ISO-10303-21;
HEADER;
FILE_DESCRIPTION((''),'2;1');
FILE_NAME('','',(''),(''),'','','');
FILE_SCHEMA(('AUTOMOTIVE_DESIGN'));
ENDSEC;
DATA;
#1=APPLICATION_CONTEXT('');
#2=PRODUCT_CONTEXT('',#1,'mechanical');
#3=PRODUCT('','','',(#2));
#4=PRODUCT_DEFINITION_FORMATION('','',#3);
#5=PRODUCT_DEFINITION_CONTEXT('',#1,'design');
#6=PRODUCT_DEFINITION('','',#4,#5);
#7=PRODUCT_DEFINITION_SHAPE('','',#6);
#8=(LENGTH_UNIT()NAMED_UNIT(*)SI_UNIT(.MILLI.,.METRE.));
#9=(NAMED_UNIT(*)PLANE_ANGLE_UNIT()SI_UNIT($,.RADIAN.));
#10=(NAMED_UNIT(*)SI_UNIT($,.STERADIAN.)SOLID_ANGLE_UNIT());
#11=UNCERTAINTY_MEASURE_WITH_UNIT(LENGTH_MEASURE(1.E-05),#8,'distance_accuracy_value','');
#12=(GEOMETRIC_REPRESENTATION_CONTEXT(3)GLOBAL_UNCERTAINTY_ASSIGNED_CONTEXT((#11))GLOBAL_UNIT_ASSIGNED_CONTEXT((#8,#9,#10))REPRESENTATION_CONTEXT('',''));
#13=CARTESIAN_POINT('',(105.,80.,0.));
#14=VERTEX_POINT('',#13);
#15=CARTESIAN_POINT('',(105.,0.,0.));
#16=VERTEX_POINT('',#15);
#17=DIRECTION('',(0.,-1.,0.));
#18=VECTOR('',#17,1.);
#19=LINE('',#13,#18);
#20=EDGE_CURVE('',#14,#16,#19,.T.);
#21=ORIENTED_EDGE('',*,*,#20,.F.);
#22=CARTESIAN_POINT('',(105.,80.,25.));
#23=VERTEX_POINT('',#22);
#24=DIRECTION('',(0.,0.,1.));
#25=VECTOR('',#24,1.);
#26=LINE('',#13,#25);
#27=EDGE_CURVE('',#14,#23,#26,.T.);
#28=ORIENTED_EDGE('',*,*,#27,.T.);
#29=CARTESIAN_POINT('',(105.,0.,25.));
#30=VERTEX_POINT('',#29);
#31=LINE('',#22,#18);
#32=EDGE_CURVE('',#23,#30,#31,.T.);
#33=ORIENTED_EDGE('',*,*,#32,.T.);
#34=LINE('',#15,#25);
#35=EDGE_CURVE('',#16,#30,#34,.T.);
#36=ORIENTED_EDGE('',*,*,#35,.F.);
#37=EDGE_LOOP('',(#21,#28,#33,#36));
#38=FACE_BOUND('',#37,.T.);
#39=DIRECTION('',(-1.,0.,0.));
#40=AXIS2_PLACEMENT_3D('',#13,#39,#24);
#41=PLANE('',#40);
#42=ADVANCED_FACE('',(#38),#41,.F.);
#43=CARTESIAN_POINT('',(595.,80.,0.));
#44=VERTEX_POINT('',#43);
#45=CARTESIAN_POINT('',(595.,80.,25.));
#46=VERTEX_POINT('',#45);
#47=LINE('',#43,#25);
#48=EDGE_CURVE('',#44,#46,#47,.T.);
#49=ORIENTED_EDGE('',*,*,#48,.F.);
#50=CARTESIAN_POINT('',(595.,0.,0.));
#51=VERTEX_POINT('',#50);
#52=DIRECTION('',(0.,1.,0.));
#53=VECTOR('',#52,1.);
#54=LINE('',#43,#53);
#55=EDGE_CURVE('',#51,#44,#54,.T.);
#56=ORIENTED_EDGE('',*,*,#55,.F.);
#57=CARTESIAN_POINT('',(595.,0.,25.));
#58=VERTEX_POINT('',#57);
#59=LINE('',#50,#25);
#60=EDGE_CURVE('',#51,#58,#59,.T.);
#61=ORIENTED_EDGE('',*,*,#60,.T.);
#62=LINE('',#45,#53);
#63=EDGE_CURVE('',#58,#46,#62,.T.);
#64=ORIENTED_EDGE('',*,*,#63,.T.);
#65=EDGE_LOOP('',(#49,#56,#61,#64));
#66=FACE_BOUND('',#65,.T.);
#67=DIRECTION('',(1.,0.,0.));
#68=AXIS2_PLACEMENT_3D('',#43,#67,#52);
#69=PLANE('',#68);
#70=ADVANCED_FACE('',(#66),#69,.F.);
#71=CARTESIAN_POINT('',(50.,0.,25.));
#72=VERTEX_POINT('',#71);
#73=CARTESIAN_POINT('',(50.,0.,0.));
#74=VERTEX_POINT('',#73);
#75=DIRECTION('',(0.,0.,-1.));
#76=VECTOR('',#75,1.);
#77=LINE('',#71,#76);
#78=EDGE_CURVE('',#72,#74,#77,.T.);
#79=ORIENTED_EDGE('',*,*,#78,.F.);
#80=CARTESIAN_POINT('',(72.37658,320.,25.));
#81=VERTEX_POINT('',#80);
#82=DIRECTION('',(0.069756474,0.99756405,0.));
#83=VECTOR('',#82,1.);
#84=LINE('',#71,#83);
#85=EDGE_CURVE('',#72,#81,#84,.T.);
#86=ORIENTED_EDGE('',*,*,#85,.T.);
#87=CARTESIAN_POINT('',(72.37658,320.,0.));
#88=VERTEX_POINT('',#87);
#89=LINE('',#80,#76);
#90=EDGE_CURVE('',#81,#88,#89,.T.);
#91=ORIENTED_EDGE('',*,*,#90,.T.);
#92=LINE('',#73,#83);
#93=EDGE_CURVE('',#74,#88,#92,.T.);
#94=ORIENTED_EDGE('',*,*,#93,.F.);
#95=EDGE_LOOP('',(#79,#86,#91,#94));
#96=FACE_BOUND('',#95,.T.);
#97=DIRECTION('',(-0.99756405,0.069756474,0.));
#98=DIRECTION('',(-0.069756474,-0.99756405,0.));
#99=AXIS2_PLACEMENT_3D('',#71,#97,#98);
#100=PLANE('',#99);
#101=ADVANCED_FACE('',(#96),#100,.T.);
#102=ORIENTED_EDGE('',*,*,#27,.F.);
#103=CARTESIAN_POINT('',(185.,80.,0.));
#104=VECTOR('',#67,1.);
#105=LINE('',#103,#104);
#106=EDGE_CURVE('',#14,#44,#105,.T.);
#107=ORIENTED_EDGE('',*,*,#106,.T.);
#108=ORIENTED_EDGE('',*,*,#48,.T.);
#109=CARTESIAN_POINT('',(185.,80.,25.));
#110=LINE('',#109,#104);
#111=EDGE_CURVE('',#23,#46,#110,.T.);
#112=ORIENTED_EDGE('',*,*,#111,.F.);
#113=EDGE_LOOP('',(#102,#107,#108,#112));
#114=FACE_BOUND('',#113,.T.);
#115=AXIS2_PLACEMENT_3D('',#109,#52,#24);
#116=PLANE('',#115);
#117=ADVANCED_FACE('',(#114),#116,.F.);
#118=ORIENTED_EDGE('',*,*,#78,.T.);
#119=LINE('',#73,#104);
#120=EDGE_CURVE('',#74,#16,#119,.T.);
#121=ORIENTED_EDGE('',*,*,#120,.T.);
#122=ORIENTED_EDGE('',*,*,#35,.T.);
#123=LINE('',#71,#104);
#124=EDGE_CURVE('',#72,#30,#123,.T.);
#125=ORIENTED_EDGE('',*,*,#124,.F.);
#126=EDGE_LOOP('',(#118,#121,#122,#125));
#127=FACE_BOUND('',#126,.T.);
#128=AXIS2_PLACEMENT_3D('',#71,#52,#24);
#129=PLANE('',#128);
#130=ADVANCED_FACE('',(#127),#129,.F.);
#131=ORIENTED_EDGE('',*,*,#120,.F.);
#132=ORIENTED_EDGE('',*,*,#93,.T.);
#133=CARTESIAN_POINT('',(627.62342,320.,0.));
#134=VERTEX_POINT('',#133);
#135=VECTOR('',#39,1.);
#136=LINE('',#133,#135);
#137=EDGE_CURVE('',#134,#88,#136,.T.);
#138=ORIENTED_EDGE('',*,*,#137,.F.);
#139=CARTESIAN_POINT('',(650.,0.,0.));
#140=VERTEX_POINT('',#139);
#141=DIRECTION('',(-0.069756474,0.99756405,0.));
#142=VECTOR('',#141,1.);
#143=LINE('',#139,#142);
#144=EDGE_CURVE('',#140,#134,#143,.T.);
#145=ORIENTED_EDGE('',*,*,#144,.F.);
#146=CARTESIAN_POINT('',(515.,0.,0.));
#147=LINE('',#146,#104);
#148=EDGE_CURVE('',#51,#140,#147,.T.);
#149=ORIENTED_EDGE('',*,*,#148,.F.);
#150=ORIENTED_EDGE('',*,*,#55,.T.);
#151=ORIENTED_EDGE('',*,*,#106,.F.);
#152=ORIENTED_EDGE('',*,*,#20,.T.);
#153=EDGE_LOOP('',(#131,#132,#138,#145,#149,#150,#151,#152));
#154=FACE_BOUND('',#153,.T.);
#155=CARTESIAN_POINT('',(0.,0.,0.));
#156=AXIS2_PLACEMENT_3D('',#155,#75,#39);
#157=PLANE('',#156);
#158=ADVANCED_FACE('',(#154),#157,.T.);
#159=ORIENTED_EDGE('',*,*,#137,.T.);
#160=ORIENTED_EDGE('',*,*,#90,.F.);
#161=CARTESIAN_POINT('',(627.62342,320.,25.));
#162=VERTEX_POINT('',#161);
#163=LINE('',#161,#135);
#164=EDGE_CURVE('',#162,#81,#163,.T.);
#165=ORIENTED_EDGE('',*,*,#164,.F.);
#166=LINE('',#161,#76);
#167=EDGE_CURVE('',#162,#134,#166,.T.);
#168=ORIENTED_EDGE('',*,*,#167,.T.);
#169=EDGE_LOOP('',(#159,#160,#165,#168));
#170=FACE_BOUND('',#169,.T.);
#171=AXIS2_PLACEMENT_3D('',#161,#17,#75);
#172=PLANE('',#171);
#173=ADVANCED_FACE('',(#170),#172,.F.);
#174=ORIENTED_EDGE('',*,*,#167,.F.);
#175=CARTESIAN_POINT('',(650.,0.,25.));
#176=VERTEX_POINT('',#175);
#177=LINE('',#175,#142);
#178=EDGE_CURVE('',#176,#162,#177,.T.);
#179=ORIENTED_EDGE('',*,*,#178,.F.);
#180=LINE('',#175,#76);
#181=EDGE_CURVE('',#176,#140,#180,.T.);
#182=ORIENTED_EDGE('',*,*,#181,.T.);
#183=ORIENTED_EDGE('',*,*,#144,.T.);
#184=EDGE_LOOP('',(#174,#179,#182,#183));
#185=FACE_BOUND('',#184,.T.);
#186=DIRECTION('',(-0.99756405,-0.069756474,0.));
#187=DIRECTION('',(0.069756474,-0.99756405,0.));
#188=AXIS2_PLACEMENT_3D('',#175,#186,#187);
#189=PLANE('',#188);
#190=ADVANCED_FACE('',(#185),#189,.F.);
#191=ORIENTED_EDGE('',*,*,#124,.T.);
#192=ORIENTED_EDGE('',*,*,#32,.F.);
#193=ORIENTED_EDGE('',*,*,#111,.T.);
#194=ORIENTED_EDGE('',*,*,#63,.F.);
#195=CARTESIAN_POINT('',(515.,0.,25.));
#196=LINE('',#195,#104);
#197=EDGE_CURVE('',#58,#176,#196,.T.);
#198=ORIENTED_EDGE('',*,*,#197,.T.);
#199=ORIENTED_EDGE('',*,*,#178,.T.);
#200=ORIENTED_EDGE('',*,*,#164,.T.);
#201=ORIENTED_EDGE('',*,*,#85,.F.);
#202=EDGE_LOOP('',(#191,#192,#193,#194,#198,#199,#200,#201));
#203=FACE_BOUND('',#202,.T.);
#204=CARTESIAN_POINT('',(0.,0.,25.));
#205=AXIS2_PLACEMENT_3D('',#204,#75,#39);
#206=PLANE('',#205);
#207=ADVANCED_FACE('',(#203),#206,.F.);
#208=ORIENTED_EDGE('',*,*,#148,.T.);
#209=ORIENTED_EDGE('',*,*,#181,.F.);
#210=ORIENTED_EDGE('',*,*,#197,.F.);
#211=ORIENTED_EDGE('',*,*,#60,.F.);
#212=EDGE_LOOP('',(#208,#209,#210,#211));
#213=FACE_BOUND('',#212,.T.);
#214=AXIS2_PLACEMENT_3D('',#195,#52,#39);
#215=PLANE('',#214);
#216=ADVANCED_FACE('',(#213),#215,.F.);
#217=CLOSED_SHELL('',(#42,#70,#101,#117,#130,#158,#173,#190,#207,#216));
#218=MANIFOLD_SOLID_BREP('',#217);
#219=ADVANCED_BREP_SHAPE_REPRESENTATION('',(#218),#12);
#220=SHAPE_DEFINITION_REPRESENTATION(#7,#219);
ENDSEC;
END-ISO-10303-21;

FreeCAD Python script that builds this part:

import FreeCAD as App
import Part
import Sketcher
Q = App.Units.Quantity


def add_polygon(sketch, points):
    """Adds a closed chain of lines whose ends are joined by coincident constraints."""
    first, n = sketch.GeometryCount, len(points)
    for a, b in zip(points, points[1:] + points[:1]):
        sketch.addGeometry(Part.LineSegment(App.Vector(*a, 0), App.Vector(*b, 0)), False)
    for i in range(n):
        sketch.addConstraint(Sketcher.Constraint("Coincident", first + i, 2, first + (i + 1) % n, 1))

doc = App.newDocument("Part")
params = doc.addObject("Spreadsheet::Sheet", "Params")
for row, (alias, value) in enumerate([
    ("sketch1_width", "135 mm"),
    ("sketch1_width2", "330 mm"),
    ("sketch1_height", "80 mm"),
    ("pad1_length", "25 mm"),
    ("sketch2_width", "80 mm"),
], start=1):
    params.set(f"A{row}", alias)
    params.set(f"B{row}", "=" + value)
    params.setAlias(f"B{row}", alias)

body = doc.addObject("PartDesign::Body", "Body")

# Sketch on XY plane
sketch1 = body.newObject("Sketcher::SketchObject", "Sketch")
sketch1.AttachmentSupport = (doc.getObject("XY_Plane"), [""])
sketch1.MapMode = "FlatFace"
add_polygon(sketch1, [(50, 0), (185, 0), (185, 80), (515, 80), (515, 0), (650, 0), (628, 320), (72, 320)])  # lines 0-7
sketch1.addConstraint([
    Sketcher.Constraint("Horizontal", 0),
    Sketcher.Constraint("Vertical", 1),
    Sketcher.Constraint("Horizontal", 2),
    Sketcher.Constraint("Vertical", 3),
    Sketcher.Constraint("Horizontal", 4),
    Sketcher.Constraint("Horizontal", 6),
    Sketcher.Constraint("PointOnObject", 0, 2, -1),
    Sketcher.Constraint("PointOnObject", 3, 2, -1),
    Sketcher.Constraint("Equal", 0, 4),
    Sketcher.Constraint("Equal", 5, 7),
    Sketcher.Constraint("DistanceX", 0, 1, 0, 2, Q("135 mm")),
    Sketcher.Constraint("DistanceX", 2, 1, 2, 2, Q("330 mm")),
    Sketcher.Constraint("DistanceY", 1, 1, 1, 2, Q("80 mm")),
    Sketcher.Constraint("Angle", 5, Q("94 deg")),
    Sketcher.Constraint("DistanceX", -1, 1, 0, 2, Q("185 mm")),
    Sketcher.Constraint("DistanceY", -1, 1, 5, 2, Q("320 mm")),
])
sketch1.setExpression("Constraints[18]", "Params.sketch1_width")
sketch1.setExpression("Constraints[19]", "Params.sketch1_width2")
sketch1.setExpression("Constraints[20]", "Params.sketch1_height")
pad1 = body.newObject("PartDesign::Pad", "Pad")
pad1.Profile = sketch1
pad1.setExpression("Length", "Params.pad1_length")

# Sketch on XY plane
sketch2 = body.newObject("Sketcher::SketchObject", "Sketch001")
sketch2.AttachmentSupport = (doc.getObject("XY_Plane"), [""])
sketch2.MapMode = "FlatFace"
sketch2.AttachmentOffset = App.Placement(App.Vector(0, 0, 25), App.Rotation())
add_polygon(sketch2, [(105, 80), (105, 0), (185, 0), (185, 80)])  # lines 0-3
add_polygon(sketch2, [(515, 80), (515, 0), (595, 0), (595, 80)])  # lines 4-7
sketch2.addConstraint([
    Sketcher.Constraint("Vertical", 0),
    Sketcher.Constraint("Horizontal", 1),
    Sketcher.Constraint("Vertical", 2),
    Sketcher.Constraint("Horizontal", 3),
    Sketcher.Constraint("Vertical", 4),
    Sketcher.Constraint("Horizontal", 5),
    Sketcher.Constraint("Vertical", 6),
    Sketcher.Constraint("Horizontal", 7),
    Sketcher.Constraint("PointOnObject", 0, 2, -1),
    Sketcher.Constraint("PointOnObject", 4, 2, -1),
    Sketcher.Constraint("Horizontal", 3, 2, 6, 2),
    Sketcher.Constraint("Equal", 3, 5),
    Sketcher.Constraint("Equal", 7, 0),
    Sketcher.Constraint("DistanceX", 1, 1, 1, 2, Q("80 mm")),
    Sketcher.Constraint("DistanceX", -1, 1, 0, 2, Q("105 mm")),
    Sketcher.Constraint("DistanceX", -1, 1, 4, 2, Q("515 mm")),
])
sketch2.setExpression("Constraints[21]", "Params.sketch2_width")
pocket1 = body.newObject("PartDesign::Pocket", "Pocket")
pocket1.Profile = sketch2
pocket1.Type = "ThroughAll"

doc.recompute()
